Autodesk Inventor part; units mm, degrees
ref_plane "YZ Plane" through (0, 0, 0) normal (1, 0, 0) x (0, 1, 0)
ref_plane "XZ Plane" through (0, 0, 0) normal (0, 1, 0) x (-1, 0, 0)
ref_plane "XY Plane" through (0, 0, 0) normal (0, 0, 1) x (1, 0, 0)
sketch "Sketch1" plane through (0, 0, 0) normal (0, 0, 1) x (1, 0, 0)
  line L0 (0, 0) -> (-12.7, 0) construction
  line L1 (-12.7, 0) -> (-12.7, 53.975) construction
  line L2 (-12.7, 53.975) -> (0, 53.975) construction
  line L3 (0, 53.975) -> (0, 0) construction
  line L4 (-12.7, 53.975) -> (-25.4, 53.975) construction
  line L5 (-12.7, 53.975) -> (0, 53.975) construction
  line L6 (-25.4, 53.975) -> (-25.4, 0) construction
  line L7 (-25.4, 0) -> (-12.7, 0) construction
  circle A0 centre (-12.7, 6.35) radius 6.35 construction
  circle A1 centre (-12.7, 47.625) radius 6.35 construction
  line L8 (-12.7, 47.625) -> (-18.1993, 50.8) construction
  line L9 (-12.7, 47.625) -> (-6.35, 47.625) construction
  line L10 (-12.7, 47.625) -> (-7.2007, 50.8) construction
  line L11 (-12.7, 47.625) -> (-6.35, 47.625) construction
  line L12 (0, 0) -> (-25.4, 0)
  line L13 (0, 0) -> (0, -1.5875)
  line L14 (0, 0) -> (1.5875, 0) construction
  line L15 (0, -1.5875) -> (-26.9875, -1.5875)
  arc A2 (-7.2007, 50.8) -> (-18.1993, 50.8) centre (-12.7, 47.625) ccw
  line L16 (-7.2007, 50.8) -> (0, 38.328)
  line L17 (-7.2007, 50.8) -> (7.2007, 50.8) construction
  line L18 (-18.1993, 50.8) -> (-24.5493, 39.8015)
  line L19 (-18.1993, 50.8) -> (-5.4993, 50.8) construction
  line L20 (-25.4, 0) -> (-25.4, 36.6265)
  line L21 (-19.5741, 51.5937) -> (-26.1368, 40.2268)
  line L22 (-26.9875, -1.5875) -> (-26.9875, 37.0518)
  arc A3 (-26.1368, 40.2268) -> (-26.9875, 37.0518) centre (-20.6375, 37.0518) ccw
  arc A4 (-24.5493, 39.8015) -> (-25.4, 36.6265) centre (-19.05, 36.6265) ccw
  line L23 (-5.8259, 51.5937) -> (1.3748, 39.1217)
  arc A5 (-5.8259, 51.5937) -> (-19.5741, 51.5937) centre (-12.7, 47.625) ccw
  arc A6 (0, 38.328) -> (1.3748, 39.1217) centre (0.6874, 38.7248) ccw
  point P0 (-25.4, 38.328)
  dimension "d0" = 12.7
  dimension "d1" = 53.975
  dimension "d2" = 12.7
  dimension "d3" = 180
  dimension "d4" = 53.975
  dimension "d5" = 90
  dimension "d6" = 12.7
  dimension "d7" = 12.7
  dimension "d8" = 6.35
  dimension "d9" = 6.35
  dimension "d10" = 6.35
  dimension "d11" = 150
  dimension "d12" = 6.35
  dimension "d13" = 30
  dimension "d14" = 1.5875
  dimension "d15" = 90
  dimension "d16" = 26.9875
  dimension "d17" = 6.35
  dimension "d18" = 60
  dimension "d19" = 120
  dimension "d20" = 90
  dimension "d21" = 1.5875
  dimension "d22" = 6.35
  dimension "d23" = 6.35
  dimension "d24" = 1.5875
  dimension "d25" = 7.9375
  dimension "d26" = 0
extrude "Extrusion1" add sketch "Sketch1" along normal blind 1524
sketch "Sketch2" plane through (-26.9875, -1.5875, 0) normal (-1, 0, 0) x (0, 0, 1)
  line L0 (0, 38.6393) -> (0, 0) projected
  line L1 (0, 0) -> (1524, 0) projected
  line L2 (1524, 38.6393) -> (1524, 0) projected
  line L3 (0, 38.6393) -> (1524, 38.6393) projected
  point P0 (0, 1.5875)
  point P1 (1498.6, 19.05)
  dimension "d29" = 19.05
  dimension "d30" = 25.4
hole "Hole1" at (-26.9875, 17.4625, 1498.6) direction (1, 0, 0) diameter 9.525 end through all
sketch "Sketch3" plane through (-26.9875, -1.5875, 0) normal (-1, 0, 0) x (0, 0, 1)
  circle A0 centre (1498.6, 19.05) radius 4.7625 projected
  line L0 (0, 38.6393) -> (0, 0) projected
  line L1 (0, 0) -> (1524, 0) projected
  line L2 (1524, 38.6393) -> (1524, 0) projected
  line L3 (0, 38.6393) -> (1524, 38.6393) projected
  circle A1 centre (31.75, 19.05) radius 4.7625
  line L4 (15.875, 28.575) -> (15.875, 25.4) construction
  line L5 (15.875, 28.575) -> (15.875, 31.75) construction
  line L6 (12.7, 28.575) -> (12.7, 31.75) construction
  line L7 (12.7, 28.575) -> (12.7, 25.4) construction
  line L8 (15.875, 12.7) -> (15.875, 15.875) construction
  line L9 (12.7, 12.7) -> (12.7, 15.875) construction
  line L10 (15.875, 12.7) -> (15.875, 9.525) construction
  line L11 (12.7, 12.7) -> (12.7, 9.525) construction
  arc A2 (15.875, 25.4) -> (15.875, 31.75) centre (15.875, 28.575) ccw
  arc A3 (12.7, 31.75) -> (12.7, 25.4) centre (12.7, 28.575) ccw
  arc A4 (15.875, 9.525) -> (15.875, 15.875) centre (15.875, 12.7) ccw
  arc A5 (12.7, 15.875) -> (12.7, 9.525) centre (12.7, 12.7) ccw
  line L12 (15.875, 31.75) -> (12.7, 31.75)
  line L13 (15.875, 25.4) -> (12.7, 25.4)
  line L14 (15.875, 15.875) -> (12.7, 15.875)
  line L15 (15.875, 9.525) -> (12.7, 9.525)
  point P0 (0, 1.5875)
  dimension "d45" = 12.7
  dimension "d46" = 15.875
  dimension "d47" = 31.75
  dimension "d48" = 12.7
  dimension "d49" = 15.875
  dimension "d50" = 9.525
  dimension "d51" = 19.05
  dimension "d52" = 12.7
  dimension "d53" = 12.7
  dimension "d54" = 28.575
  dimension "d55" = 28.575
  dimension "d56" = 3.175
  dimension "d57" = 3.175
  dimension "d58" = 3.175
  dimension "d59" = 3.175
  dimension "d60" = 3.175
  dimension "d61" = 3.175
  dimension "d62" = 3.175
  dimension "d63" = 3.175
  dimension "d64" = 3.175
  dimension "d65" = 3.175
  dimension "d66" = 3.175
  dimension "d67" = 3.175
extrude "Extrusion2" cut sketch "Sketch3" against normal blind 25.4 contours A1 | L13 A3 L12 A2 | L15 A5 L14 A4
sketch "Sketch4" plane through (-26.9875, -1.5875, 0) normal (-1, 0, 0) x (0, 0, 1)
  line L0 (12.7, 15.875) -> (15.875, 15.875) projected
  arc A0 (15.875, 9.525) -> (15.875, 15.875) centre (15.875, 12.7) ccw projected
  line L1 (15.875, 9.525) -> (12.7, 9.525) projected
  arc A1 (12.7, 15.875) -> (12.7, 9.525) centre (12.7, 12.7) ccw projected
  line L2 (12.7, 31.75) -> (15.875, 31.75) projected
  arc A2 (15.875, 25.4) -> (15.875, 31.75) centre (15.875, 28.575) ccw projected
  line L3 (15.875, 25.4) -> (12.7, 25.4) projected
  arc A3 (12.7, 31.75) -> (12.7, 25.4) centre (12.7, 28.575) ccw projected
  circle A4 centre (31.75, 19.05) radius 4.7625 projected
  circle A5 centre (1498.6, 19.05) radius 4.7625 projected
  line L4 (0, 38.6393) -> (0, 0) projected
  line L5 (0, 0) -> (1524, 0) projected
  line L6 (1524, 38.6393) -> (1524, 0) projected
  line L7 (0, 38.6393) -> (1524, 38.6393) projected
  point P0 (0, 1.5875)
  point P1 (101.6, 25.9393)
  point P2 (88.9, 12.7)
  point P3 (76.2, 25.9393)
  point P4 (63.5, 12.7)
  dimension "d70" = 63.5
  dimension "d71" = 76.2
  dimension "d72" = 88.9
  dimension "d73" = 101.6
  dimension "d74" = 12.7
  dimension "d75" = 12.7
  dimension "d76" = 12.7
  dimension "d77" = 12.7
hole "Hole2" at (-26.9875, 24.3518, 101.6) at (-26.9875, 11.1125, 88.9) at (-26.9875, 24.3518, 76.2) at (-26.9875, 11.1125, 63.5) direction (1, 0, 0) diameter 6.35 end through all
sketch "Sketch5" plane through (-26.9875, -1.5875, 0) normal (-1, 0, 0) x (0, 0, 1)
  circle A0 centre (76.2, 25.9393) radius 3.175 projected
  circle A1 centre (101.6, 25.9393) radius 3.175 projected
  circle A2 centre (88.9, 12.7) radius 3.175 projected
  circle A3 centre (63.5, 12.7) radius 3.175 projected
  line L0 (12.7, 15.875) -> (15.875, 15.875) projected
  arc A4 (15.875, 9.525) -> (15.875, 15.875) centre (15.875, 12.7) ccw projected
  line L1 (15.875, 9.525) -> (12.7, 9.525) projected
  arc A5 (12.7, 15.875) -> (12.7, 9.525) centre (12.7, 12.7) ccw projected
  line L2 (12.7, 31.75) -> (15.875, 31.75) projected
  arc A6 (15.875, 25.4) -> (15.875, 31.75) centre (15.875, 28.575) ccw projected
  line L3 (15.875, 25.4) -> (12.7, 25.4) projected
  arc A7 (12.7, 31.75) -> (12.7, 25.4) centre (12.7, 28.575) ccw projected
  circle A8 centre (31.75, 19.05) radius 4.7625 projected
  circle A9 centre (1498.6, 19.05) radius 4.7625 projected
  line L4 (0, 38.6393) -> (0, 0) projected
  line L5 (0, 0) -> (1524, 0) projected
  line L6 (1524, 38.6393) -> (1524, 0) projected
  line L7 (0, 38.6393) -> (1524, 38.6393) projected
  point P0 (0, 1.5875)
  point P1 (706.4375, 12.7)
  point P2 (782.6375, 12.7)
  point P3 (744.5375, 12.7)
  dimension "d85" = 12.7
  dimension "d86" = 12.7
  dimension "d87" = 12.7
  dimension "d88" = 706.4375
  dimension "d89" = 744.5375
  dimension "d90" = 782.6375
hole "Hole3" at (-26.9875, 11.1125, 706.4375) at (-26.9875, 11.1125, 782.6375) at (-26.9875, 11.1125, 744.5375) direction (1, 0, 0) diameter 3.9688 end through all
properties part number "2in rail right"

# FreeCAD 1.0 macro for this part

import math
import FreeCAD as App
import Part
import Sketcher
from FreeCAD import Vector
Q = App.Units.Quantity

doc = App.newDocument("Part")
body = doc.addObject("PartDesign::Body", "Body")

# Sketch on XY plane
sketch1 = body.newObject("Sketcher::SketchObject", "Sketch")
sketch1.AttachmentSupport = (doc.getObject("XY_Plane"), [""])
sketch1.MapMode = "FlatFace"
sketch1.addGeometry([
    Part.LineSegment(Vector(0, -1.5875, 0), Vector(0, 0, 0)),  # 0
    Part.LineSegment(Vector(0, 0, 0), Vector(-25.4, 0, 0)),  # 1
    Part.LineSegment(Vector(-25.4, 0, 0), Vector(-25.4, 36.6265, 0)),  # 2
    Part.ArcOfCircle(Part.Circle(Vector(-19.05, 36.6265, 0), Vector(0, 0, 1), 6.350034), math.radians(150.000175), math.radians(180)),  # 3
    Part.LineSegment(Vector(-24.5493, 39.8015, 0), Vector(-18.1993, 50.8, 0)),  # 4
    Part.ArcOfCircle(Part.Circle(Vector(-12.7, 47.625, 0), Vector(0, 0, 1), 6.350034), math.radians(29.999825), math.radians(150.000175)),  # 5
    Part.LineSegment(Vector(-7.2007, 50.8, 0), Vector(0, 38.328, 0)),  # 6
    Part.ArcOfCircle(Part.Circle(Vector(0.6874, 38.7248, 0), Vector(0, 0, 1), 0.793706), math.radians(-150.004412), math.radians(30.001839)),  # 7
    Part.LineSegment(Vector(1.3748, 39.1217, 0), Vector(-5.8259, 51.5937, 0)),  # 8
    Part.ArcOfCircle(Part.Circle(Vector(-12.7, 47.625, 0), Vector(0, 0, 1), 7.937495), math.radians(29.999603), math.radians(150.000397)),  # 9
    Part.LineSegment(Vector(-19.5741, 51.5937, 0), Vector(-26.1368, 40.2268, 0)),  # 10
    Part.ArcOfCircle(Part.Circle(Vector(-20.6375, 37.0518, 0), Vector(0, 0, 1), 6.350034), math.radians(150.000175), math.radians(180)),  # 11
    Part.LineSegment(Vector(-26.9875, 37.0518, 0), Vector(-26.9875, -1.5875, 0)),  # 12
    Part.LineSegment(Vector(-26.9875, -1.5875, 0), Vector(0, -1.5875, 0)),  # 13
], False)
sketch1.addConstraint([
    Sketcher.Constraint("Coincident", 0, 2, 1, 1),
    Sketcher.Constraint("Coincident", 1, 2, 2, 1),
    Sketcher.Constraint("Tangent", 2, 2, 3, 2),
    Sketcher.Constraint("Tangent", 3, 1, 4, 1),
    Sketcher.Constraint("Tangent", 4, 2, 5, 2),
    Sketcher.Constraint("Tangent", 5, 1, 6, 1),
    Sketcher.Constraint("Tangent", 6, 2, 7, 1),
    Sketcher.Constraint("Tangent", 7, 2, 8, 1),
    Sketcher.Constraint("Tangent", 8, 2, 9, 1),
    Sketcher.Constraint("Tangent", 9, 2, 10, 1),
    Sketcher.Constraint("Tangent", 10, 2, 11, 1),
    Sketcher.Constraint("Tangent", 11, 2, 12, 1),
    Sketcher.Constraint("Coincident", 12, 2, 13, 1),
    Sketcher.Constraint("Coincident", 13, 2, 0, 1),
    Sketcher.Constraint("Vertical", 0),
    Sketcher.Constraint("Horizontal", 1),
    Sketcher.Constraint("Vertical", 2),
    Sketcher.Constraint("Vertical", 12),
    Sketcher.Constraint("Horizontal", 13),
    Sketcher.Constraint("Coincident", 0, 2, -1, 1),
    Sketcher.Constraint("Coincident", 9, 3, 5, 3),
    Sketcher.Constraint("Equal", 3, 5),
    Sketcher.Constraint("Equal", 5, 11),
    Sketcher.Constraint("PointOnObject", 6, 2, -2),
    Sketcher.Constraint("Parallel", 6, 8),
    Sketcher.Constraint("Parallel", 4, 10),
    Sketcher.Constraint("Horizontal", 4, 2, 5, 1),
    Sketcher.Constraint("Radius", 3, Q("0.25 in")),
    Sketcher.Constraint("Angle", 4, Q("60 deg")),
    Sketcher.Constraint("Radius", 7, Q("0.031248 in")),
    Sketcher.Constraint("Distance", 4, Q("0.5 in")),
    Sketcher.Constraint("DistanceX", 5, 3, -1, 1, Q("0.5 in")),
    Sketcher.Constraint("DistanceX", 13, 1, 13, 2, Q("1.0625 in")),
    Sketcher.Constraint("DistanceY", 0, 1, 0, 2, Q("0.0625 in")),
    Sketcher.Constraint("DistanceY", -1, 1, 4, 2, Q("2 in")),
])
pad1 = body.newObject("PartDesign::Pad", "Pad")
pad1.Profile = sketch1
pad1.Length = Q("60 in")

# Sketch on YZ plane
sketch2 = body.newObject("Sketcher::SketchObject", "Sketch001")
sketch2.AttachmentSupport = (doc.getObject("YZ_Plane"), [""])
sketch2.MapMode = "FlatFace"
sketch2.AttachmentOffset = App.Placement(Vector(0, 0, -1.0625 * 25.4), App.Rotation())
sketch2.addGeometry(Part.Circle(Vector(17.4625, 1498.6, 0), Vector(0, 0, 1), 4.7625), False)
sketch2.addConstraint([
    Sketcher.Constraint("Diameter", 0, Q("0.375 in")),
    Sketcher.Constraint("DistanceY", -1, 1, 0, 3, Q("59 in")),
    Sketcher.Constraint("DistanceX", -1, 1, 0, 3, Q("0.6875 in")),
])
doc.recompute()
hole = body.newObject("PartDesign::Hole", "Hole")
hole.Profile = sketch2
hole.ThreadType = "None"
hole.Diameter = Q("0.375 in")
hole.DepthType = "ThroughAll"
hole.Reversed = True

# Sketch on YZ plane
sketch3 = body.newObject("Sketcher::SketchObject", "Sketch002")
sketch3.AttachmentSupport = (doc.getObject("YZ_Plane"), [""])
sketch3.MapMode = "FlatFace"
sketch3.AttachmentOffset = App.Placement(Vector(0, 0, -1.0625 * 25.4), App.Rotation())
sketch3.addGeometry([
    Part.Circle(Vector(17.4625, 31.75, 0), Vector(0, 0, 1), 4.7625),  # 0
    Part.LineSegment(Vector(23.8125, 12.7, 0), Vector(23.8125, 15.875, 0)),  # 1
    Part.ArcOfCircle(Part.Circle(Vector(26.9875, 15.875, 0), Vector(0, 0, 1), 3.175), math.radians(0), math.radians(180)),  # 2
    Part.LineSegment(Vector(30.1625, 15.875, 0), Vector(30.1625, 12.7, 0)),  # 3
    Part.ArcOfCircle(Part.Circle(Vector(26.9875, 12.7, 0), Vector(0, 0, 1), 3.175), math.radians(180), math.radians(360)),  # 4
    Part.LineSegment(Vector(7.9375, 12.7, 0), Vector(7.9375, 15.875, 0)),  # 5
    Part.ArcOfCircle(Part.Circle(Vector(11.1125, 15.875, 0), Vector(0, 0, 1), 3.175), math.radians(0), math.radians(180)),  # 6
    Part.LineSegment(Vector(14.2875, 15.875, 0), Vector(14.2875, 12.7, 0)),  # 7
    Part.ArcOfCircle(Part.Circle(Vector(11.1125, 12.7, 0), Vector(0, 0, 1), 3.175), math.radians(180), math.radians(360)),  # 8
], False)
sketch3.addConstraint([
    Sketcher.Constraint("Tangent", 1, 2, 2, 2),
    Sketcher.Constraint("Tangent", 2, 1, 3, 1),
    Sketcher.Constraint("Tangent", 3, 2, 4, 2),
    Sketcher.Constraint("Tangent", 4, 1, 1, 1),
    Sketcher.Constraint("Tangent", 5, 2, 6, 2),
    Sketcher.Constraint("Tangent", 6, 1, 7, 1),
    Sketcher.Constraint("Tangent", 7, 2, 8, 2),
    Sketcher.Constraint("Tangent", 8, 1, 5, 1),
    Sketcher.Constraint("Vertical", 1),
    Sketcher.Constraint("Vertical", 3),
    Sketcher.Constraint("Vertical", 5),
    Sketcher.Constraint("Vertical", 7),
    Sketcher.Constraint("Equal", 4, 6),
    Sketcher.Constraint("Horizontal", 2, 3, 6, 3),
    Sketcher.Constraint("Horizontal", 4, 3, 8, 3),
    Sketcher.Constraint("Diameter", 0, Q("0.375 in")),
    Sketcher.Constraint("Radius", 2, Q("0.125 in")),
    Sketcher.Constraint("DistanceY", -1, 1, 4, 3, Q("0.5 in")),
    Sketcher.Constraint("DistanceX", 6, 3, 1, 2, Q("0.5 in")),
    Sketcher.Constraint("DistanceY", 1, 1, 1, 2, Q("0.125 in")),
    Sketcher.Constraint("DistanceY", -1, 1, 0, 3, Q("1.25 in")),
    Sketcher.Constraint("DistanceX", 0, 3, 2, 3, Q("0.375 in")),
    Sketcher.Constraint("DistanceX", -1, 1, 0, 3, Q("0.6875 in")),
])
pocket1 = body.newObject("PartDesign::Pocket", "Pocket")
pocket1.Profile = sketch3
pocket1.Length = Q("1 in")
pocket1.Reversed = True

# Sketch on YZ plane
sketch4 = body.newObject("Sketcher::SketchObject", "Sketch003")
sketch4.AttachmentSupport = (doc.getObject("YZ_Plane"), [""])
sketch4.MapMode = "FlatFace"
sketch4.AttachmentOffset = App.Placement(Vector(0, 0, -1.0625 * 25.4), App.Rotation())
sketch4.addGeometry([
    Part.Circle(Vector(24.3518, 101.6, 0), Vector(0, 0, 1), 3.175),
    Part.Circle(Vector(11.1125, 88.9, 0), Vector(0, 0, 1), 3.175),
    Part.Circle(Vector(24.3518, 76.2, 0), Vector(0, 0, 1), 3.175),
    Part.Circle(Vector(11.1125, 63.5, 0), Vector(0, 0, 1), 3.175),
], False)
sketch4.addConstraint([
    Sketcher.Constraint("Equal", 0, 1),
    Sketcher.Constraint("Equal", 1, 2),
    Sketcher.Constraint("Equal", 2, 3),
    Sketcher.Constraint("Vertical", 0, 3, 2, 3),
    Sketcher.Constraint("Vertical", 1, 3, 3, 3),
    Sketcher.Constraint("Diameter", 0, Q("0.25 in")),
    Sketcher.Constraint("DistanceY", -1, 1, 0, 3, Q("4 in")),
    Sketcher.Constraint("DistanceY", -1, 1, 2, 3, Q("3 in")),
    Sketcher.Constraint("DistanceY", 3, 3, 1, 3, Q("1 in")),
    Sketcher.Constraint("DistanceY", -1, 1, 1, 3, Q("3.5 in")),
    Sketcher.Constraint("DistanceX", -1, 1, 1, 3, Q("0.4375 in")),
    Sketcher.Constraint("DistanceX", -1, 1, 0, 3, Q("24.3518 mm")),
])
doc.recompute()
hole2 = body.newObject("PartDesign::Hole", "Hole001")
hole2.Profile = sketch4
hole2.ThreadType = "None"
hole2.Diameter = Q("0.25 in")
hole2.DepthType = "ThroughAll"
hole2.Reversed = True

# Sketch on YZ plane
sketch5 = body.newObject("Sketcher::SketchObject", "Sketch004")
sketch5.AttachmentSupport = (doc.getObject("YZ_Plane"), [""])
sketch5.MapMode = "FlatFace"
sketch5.AttachmentOffset = App.Placement(Vector(0, 0, -1.0625 * 25.4), App.Rotation())
sketch5.addGeometry([
    Part.Circle(Vector(11.1125, 706.4375, 0), Vector(0, 0, 1), 1.9844),
    Part.Circle(Vector(11.1125, 782.6375, 0), Vector(0, 0, 1), 1.9844),
    Part.Circle(Vector(11.1125, 744.5375, 0), Vector(0, 0, 1), 1.9844),
], False)
sketch5.addConstraint([
    Sketcher.Constraint("Equal", 0, 1),
    Sketcher.Constraint("Equal", 1, 2),
    Sketcher.Constraint("Vertical", 0, 3, 1, 3),
    Sketcher.Constraint("Vertical", 1, 3, 2, 3),
    Sketcher.Constraint("Diameter", 0, Q("0.156252 in")),
    Sketcher.Constraint("DistanceY", 0, 3, 1, 3, Q("3 in")),
    Sketcher.Constraint("DistanceY", 0, 3, 2, 3, Q("1.5 in")),
    Sketcher.Constraint("DistanceX", -1, 1, 0, 3, Q("0.4375 in")),
    Sketcher.Constraint("DistanceY", -1, 1, 0, 3, Q("27.8125 in")),
])
doc.recompute()
hole3 = body.newObject("PartDesign::Hole", "Hole002")
hole3.Profile = sketch5
hole3.ThreadType = "None"
hole3.Diameter = Q("0.156252 in")
hole3.DepthType = "ThroughAll"
hole3.Reversed = True

doc.recompute()
